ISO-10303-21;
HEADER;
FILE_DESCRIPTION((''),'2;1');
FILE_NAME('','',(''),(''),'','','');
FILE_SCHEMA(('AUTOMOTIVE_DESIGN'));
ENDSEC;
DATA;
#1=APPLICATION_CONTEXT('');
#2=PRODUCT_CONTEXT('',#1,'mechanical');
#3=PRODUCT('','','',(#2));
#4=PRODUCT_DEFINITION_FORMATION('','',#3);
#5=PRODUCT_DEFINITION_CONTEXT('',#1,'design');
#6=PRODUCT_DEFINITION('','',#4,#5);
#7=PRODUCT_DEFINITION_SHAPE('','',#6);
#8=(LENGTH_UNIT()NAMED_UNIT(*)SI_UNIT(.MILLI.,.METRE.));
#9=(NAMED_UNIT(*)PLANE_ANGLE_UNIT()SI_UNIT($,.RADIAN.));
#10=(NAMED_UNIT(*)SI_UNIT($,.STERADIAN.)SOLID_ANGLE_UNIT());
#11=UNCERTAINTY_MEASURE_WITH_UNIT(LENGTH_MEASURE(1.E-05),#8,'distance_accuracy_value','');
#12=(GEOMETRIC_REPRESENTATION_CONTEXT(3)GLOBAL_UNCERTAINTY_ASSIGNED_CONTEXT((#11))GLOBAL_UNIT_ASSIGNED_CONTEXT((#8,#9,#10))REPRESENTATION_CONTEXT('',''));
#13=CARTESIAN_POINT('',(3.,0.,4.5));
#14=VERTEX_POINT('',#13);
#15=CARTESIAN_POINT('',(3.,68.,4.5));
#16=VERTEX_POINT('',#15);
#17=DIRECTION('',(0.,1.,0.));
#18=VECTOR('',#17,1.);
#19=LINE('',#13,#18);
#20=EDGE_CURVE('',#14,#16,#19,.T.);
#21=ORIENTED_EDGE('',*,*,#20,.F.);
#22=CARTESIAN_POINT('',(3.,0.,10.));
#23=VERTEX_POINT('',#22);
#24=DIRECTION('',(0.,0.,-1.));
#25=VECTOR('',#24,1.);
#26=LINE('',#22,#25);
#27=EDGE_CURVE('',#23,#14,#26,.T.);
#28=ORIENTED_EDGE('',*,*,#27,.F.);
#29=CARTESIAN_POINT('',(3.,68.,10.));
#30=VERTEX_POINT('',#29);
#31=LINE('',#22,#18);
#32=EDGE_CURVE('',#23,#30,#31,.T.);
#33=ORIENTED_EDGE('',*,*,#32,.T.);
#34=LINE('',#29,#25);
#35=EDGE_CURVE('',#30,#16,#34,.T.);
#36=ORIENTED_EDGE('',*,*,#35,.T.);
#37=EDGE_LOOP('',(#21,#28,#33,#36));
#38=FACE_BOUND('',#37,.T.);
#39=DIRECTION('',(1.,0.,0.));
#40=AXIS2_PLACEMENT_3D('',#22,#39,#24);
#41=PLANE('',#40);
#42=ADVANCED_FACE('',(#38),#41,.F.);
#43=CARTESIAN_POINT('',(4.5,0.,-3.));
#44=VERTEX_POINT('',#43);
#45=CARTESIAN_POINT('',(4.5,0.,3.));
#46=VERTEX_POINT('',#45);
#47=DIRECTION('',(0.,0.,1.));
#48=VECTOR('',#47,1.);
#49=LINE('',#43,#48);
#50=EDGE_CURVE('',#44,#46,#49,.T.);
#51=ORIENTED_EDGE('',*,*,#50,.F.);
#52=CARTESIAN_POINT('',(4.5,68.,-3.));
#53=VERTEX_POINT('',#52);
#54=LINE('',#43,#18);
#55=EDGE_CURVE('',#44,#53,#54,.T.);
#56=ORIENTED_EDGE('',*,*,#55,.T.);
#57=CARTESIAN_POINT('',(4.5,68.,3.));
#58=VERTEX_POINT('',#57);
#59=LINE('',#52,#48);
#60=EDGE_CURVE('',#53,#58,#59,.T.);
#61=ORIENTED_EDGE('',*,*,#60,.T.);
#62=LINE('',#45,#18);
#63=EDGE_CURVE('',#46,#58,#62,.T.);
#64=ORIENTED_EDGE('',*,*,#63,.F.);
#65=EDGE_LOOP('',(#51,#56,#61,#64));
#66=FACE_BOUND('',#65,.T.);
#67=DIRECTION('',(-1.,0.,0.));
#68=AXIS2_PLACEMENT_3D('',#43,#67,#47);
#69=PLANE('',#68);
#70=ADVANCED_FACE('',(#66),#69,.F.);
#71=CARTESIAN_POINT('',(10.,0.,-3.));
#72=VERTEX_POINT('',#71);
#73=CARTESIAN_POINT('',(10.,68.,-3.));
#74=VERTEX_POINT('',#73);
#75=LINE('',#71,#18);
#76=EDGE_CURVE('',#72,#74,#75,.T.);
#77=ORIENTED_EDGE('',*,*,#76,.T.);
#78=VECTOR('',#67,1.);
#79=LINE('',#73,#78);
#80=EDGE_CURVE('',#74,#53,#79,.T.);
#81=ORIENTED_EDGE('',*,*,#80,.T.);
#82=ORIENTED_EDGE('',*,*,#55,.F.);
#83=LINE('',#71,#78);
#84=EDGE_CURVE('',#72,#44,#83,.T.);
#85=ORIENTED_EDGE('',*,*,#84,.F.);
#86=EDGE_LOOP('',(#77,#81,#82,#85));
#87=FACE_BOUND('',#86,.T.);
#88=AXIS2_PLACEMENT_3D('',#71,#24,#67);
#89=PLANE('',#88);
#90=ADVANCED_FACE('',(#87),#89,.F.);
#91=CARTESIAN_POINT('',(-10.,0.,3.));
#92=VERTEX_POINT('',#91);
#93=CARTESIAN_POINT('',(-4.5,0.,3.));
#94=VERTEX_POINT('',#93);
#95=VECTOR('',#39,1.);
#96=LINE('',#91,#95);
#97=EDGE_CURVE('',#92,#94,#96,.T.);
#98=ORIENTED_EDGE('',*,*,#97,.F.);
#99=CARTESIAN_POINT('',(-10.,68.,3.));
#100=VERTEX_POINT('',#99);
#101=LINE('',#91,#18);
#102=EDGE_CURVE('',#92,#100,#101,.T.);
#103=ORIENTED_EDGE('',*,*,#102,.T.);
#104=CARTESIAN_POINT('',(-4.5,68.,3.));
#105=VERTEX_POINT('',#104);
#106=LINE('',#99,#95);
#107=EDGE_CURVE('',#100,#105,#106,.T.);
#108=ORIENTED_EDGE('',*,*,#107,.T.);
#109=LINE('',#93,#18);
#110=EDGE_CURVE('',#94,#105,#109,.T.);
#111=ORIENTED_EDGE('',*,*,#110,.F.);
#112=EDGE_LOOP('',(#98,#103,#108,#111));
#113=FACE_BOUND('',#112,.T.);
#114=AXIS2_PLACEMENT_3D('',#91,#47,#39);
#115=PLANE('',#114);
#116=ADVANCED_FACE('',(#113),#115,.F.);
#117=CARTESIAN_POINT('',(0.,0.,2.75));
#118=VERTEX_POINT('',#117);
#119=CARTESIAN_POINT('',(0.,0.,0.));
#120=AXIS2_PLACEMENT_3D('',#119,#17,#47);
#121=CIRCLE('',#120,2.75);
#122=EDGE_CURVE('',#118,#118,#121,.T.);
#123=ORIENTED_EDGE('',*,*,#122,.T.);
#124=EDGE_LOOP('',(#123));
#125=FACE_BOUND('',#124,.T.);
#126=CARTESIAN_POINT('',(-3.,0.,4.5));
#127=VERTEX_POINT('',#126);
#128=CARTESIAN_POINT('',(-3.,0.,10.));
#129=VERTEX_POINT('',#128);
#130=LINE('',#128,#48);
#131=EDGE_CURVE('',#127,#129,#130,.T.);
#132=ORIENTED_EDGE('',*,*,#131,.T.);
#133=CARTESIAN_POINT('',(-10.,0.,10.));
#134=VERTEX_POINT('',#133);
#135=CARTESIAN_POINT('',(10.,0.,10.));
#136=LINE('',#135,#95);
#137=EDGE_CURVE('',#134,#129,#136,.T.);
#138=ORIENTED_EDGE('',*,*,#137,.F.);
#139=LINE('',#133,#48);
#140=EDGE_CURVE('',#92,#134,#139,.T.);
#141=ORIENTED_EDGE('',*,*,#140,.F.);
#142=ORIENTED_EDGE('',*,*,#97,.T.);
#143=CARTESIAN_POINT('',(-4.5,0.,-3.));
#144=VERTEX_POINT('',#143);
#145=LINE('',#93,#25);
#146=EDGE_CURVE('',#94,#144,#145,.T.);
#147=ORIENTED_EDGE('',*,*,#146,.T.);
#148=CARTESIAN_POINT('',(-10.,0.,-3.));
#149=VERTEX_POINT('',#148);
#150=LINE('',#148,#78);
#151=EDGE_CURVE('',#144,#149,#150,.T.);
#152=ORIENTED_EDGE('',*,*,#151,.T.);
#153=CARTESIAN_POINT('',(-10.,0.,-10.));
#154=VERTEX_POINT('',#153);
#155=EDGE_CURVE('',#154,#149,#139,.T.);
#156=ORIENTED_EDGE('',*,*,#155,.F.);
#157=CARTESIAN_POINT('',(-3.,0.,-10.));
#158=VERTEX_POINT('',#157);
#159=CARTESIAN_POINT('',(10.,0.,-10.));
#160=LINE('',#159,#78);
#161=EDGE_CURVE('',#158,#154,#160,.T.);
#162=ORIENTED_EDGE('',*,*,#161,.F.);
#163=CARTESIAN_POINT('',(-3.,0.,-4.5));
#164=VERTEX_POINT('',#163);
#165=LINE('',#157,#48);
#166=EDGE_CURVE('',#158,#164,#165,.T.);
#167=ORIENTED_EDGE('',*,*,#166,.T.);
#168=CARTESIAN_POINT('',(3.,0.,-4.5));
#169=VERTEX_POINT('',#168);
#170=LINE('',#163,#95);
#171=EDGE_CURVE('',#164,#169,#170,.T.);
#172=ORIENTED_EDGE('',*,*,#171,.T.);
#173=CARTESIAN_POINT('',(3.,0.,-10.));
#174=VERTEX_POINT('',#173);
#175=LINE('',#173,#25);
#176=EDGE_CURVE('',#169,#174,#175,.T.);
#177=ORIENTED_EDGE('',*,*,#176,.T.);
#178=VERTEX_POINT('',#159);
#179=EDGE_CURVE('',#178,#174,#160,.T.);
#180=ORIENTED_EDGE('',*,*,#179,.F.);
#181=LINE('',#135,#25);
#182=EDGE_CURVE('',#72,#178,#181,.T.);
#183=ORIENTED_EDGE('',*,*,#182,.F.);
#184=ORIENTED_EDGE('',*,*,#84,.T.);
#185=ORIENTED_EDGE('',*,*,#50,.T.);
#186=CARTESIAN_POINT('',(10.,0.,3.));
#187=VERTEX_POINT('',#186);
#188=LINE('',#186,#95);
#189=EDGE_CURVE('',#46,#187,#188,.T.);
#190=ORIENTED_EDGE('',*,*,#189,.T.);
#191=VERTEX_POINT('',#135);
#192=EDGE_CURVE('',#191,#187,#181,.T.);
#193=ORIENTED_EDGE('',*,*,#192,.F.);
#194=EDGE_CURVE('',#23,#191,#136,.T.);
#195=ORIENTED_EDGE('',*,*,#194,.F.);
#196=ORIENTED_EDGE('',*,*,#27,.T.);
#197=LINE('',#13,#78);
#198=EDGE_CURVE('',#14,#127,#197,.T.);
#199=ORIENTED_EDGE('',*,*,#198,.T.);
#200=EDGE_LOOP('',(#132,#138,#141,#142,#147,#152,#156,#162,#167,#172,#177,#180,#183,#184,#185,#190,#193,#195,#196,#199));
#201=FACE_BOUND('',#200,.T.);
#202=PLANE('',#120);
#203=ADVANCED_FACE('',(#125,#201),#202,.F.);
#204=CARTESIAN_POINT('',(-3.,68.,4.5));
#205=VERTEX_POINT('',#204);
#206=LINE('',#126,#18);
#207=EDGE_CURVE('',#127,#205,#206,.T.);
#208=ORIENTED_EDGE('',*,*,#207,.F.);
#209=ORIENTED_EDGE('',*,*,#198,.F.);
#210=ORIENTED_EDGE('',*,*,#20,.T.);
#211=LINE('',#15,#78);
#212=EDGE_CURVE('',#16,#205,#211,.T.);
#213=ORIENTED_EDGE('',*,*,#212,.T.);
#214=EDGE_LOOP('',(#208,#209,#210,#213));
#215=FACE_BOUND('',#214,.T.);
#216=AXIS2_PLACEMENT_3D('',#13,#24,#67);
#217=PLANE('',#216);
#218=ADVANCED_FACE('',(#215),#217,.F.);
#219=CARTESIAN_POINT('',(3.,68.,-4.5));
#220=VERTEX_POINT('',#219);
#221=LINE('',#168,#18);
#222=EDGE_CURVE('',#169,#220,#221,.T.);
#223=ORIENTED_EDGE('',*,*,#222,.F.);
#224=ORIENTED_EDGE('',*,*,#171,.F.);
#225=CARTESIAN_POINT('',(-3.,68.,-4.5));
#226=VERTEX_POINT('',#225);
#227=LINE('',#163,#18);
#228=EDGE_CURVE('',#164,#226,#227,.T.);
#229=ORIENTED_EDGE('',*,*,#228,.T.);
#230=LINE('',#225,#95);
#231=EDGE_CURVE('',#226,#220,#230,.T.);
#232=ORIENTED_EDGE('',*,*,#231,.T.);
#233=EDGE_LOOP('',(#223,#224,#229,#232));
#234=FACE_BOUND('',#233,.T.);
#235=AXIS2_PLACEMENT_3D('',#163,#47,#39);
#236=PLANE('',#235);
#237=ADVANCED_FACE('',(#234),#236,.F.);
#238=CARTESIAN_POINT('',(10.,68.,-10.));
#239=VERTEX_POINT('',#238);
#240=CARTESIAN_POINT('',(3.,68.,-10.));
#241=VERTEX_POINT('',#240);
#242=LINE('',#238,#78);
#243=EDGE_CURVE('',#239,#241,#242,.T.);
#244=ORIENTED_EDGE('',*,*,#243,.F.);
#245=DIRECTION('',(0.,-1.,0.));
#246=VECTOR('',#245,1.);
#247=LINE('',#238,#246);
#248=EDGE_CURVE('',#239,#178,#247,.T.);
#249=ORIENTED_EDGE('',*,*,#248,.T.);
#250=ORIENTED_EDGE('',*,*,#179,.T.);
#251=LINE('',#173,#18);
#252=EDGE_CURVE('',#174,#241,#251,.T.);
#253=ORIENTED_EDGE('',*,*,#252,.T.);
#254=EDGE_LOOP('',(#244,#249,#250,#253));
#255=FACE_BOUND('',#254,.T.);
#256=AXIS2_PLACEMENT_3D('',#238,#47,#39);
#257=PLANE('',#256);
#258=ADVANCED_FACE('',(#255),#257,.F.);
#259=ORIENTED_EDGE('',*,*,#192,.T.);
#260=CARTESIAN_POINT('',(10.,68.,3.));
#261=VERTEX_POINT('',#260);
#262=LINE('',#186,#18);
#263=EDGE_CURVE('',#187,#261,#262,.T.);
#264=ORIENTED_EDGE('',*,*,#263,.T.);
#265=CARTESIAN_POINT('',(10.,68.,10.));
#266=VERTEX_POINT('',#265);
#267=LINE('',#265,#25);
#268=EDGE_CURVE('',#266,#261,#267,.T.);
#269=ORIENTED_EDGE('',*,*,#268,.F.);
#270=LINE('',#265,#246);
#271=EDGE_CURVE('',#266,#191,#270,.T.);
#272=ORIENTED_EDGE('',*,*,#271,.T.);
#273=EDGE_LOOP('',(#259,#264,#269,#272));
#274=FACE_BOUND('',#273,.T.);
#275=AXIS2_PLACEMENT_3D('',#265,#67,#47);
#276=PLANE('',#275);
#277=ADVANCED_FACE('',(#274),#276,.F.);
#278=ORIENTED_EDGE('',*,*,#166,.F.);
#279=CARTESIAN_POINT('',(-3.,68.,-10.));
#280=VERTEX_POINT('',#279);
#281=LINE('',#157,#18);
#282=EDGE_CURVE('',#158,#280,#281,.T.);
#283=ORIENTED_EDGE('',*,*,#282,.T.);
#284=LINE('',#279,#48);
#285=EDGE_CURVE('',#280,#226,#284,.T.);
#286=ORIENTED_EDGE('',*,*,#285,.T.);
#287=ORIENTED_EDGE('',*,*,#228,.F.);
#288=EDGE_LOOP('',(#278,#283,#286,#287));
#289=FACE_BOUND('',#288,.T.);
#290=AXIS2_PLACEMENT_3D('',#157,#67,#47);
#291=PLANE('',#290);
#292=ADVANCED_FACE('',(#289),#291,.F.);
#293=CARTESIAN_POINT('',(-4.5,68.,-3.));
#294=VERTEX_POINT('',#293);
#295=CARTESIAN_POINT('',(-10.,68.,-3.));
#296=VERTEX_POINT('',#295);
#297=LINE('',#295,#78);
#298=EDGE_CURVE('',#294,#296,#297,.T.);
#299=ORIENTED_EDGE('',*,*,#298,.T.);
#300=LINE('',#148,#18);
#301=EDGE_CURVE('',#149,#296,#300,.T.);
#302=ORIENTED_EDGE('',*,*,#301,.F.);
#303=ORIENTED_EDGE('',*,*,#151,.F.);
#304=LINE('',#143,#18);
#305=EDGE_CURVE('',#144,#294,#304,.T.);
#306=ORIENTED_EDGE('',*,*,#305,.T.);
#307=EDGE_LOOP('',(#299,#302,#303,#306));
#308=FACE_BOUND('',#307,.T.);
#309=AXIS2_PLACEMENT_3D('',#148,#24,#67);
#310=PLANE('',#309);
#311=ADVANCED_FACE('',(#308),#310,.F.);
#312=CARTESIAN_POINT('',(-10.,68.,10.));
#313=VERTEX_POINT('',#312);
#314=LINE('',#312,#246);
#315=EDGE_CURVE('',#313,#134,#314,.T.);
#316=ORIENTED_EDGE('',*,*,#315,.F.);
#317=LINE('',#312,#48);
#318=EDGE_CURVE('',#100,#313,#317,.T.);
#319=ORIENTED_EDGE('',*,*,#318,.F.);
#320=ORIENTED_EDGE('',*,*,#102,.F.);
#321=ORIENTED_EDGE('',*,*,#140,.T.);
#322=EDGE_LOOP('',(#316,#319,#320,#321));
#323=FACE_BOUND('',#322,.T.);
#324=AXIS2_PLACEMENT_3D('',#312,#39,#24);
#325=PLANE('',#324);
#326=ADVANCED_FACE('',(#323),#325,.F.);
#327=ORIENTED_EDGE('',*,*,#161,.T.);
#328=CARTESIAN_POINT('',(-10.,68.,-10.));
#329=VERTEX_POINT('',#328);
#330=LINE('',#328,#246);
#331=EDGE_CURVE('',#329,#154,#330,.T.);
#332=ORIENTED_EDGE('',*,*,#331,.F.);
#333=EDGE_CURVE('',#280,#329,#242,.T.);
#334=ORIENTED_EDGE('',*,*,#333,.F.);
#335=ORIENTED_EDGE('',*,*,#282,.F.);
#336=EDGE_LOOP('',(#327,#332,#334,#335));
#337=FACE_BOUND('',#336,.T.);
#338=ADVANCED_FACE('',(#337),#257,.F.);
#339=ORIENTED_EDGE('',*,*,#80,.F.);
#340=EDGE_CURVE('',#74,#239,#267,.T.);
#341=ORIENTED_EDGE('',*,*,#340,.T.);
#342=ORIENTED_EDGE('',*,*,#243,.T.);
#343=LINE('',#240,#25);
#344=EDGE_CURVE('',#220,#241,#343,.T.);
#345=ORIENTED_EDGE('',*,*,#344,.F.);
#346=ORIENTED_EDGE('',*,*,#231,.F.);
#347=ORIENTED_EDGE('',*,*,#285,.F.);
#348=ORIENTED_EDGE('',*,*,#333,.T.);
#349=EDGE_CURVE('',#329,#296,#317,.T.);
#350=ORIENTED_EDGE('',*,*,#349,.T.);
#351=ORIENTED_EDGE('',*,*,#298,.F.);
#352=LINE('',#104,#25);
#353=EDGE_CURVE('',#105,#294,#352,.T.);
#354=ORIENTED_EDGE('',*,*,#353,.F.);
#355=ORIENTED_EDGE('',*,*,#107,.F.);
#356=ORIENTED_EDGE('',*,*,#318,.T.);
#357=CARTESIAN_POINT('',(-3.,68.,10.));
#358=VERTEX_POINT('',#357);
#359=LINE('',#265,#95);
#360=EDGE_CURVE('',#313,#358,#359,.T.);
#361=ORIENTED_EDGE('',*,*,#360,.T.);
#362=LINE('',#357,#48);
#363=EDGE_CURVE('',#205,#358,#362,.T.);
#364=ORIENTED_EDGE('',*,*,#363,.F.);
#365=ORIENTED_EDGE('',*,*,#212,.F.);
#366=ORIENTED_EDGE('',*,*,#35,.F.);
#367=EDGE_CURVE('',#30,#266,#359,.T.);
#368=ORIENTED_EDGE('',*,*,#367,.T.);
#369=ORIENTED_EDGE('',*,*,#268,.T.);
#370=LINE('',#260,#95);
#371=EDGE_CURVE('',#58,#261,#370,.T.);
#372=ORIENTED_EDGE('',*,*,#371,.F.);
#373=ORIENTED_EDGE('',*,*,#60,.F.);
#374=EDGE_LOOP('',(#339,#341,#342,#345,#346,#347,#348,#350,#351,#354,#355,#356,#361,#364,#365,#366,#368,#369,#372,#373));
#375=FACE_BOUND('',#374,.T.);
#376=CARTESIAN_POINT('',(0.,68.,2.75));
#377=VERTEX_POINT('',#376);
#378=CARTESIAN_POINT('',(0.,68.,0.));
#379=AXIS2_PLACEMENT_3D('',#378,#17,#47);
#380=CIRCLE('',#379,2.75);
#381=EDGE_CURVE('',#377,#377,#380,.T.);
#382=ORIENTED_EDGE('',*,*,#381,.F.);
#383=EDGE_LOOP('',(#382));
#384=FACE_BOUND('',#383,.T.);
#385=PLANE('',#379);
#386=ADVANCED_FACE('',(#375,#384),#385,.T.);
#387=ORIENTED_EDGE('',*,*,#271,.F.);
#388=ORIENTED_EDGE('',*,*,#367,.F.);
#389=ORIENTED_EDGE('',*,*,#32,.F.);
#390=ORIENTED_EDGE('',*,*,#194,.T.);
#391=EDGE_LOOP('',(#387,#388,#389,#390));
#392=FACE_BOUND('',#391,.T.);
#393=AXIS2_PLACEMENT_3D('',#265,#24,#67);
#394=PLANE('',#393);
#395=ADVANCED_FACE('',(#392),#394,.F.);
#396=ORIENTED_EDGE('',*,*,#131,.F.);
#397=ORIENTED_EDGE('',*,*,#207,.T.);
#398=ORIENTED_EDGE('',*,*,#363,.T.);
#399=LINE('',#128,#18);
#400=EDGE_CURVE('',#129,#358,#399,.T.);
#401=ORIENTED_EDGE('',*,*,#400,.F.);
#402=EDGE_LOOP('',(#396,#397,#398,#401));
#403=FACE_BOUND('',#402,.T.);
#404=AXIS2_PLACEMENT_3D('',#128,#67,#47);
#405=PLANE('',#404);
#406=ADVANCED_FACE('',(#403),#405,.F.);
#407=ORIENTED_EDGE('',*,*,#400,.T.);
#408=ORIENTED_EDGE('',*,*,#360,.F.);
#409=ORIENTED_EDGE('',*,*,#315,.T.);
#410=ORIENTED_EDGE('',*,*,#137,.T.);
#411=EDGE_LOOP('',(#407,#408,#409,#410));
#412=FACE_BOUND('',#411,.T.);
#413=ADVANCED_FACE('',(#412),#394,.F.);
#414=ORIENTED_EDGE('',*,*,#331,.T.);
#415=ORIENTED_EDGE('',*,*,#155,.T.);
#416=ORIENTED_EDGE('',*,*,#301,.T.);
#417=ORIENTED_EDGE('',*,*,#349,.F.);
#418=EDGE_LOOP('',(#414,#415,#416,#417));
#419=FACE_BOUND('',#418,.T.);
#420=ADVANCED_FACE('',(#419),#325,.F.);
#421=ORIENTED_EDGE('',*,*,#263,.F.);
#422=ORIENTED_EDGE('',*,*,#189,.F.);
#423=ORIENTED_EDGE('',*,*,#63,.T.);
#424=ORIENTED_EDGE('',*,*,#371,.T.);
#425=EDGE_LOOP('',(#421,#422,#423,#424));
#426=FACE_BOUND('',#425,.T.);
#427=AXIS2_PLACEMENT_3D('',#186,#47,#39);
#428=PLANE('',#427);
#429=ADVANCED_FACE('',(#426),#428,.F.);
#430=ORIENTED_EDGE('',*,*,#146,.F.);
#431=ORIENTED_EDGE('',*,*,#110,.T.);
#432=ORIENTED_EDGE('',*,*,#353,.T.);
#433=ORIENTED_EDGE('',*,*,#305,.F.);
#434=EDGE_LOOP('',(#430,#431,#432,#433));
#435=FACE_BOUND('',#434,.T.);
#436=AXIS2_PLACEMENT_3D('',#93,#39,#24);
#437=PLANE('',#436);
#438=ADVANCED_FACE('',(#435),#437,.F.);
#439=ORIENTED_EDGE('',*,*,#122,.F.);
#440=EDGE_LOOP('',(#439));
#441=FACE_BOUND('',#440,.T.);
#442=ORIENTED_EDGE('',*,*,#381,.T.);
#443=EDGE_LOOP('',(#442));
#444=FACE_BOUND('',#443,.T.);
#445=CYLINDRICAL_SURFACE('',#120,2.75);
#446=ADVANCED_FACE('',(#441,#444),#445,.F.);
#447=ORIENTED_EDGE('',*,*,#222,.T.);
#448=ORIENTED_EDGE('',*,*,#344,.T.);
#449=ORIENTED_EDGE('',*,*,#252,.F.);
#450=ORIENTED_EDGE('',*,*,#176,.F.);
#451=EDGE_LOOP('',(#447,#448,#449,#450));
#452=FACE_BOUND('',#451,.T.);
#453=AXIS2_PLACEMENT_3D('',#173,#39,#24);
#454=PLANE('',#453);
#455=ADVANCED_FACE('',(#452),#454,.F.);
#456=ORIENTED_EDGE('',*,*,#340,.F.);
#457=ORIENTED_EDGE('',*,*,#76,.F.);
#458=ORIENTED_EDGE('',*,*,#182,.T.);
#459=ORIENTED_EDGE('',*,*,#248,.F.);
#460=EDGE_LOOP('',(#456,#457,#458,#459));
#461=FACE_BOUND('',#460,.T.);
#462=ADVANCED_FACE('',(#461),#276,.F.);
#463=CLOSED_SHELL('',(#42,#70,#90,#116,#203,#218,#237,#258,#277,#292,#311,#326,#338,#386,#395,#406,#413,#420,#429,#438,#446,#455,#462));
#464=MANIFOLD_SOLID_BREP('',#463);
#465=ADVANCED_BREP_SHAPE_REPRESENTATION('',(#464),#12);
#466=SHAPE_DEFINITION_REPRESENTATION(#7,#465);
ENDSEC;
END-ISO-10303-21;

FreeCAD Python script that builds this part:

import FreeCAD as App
import Part
import Sketcher
from FreeCAD import Vector


def add_polygon(sketch, points):
    """Adds a closed chain of lines whose ends are joined by coincident constraints."""
    first, n = sketch.GeometryCount, len(points)
    for a, b in zip(points, points[1:] + points[:1]):
        sketch.addGeometry(Part.LineSegment(App.Vector(*a, 0), App.Vector(*b, 0)), False)
    for i in range(n):
        sketch.addConstraint(Sketcher.Constraint("Coincident", first + i, 2, first + (i + 1) % n, 1))

doc = App.newDocument("Part")
body = doc.addObject("PartDesign::Body", "Body")

sketch1 = body.newObject("Sketcher::SketchObject", "Sketch")
sketch1.AttachmentSupport = (doc.getObject("XZ_Plane"), [""])
sketch1.MapMode = "FlatFace"
add_polygon(sketch1, [(-10, -10), (-10, 10), (10, 10), (10, -10)])
sketch1.addConstraint(Sketcher.Constraint("Vertical", 0))
sketch1.addConstraint(Sketcher.Constraint("Horizontal", 1))
sketch1.addConstraint(Sketcher.Constraint("Vertical", 2))
sketch1.addConstraint(Sketcher.Constraint("Horizontal", 3))
sketch1.addConstraint(Sketcher.Constraint("Symmetric", 0, 2, 2, 2, -1, 1))
sketch1.addConstraint(Sketcher.Constraint("Equal", 3, 0))
sketch1.addConstraint(Sketcher.Constraint("DistanceX", 1, 1, 1, 2, 20.0))
pad1 = body.newObject("PartDesign::Pad", "Pad")
pad1.Profile = sketch1
pad1.Length = 68
pad1.Reversed = True

sketch2 = body.newObject("Sketcher::SketchObject", "Sketch001")
sketch2.AttachmentSupport = (doc.getObject("XZ_Plane"), [""])
sketch2.MapMode = "FlatFace"
sketch2.AttachmentOffset = App.Placement(Vector(0, 0, -68), App.Rotation())
sketch2.addGeometry(Part.Circle(Vector(0, 0, 0), Vector(0, 0, 1), 2.8), False)
add_polygon(sketch2, [(-3, -10), (-3, -4.5), (3, -4.5), (3, -10)])
add_polygon(sketch2, [(4.5, -3), (4.5, 3), (10, 3), (10, -3)])
add_polygon(sketch2, [(-3, 4.5), (-3, 10), (3, 10), (3, 4.5)])
add_polygon(sketch2, [(-10, -3), (-10, 3), (-4.5, 3), (-4.5, -3)])
sketch2.addConstraint(Sketcher.Constraint("Vertical", 1))
sketch2.addConstraint(Sketcher.Constraint("Horizontal", 2))
sketch2.addConstraint(Sketcher.Constraint("Vertical", 3))
sketch2.addConstraint(Sketcher.Constraint("Horizontal", 4))
sketch2.addConstraint(Sketcher.Constraint("Vertical", 5))
sketch2.addConstraint(Sketcher.Constraint("Horizontal", 6))
sketch2.addConstraint(Sketcher.Constraint("Vertical", 7))
sketch2.addConstraint(Sketcher.Constraint("Horizontal", 8))
sketch2.addConstraint(Sketcher.Constraint("Vertical", 9))
sketch2.addConstraint(Sketcher.Constraint("Horizontal", 10))
sketch2.addConstraint(Sketcher.Constraint("Vertical", 11))
sketch2.addConstraint(Sketcher.Constraint("Horizontal", 12))
sketch2.addConstraint(Sketcher.Constraint("Vertical", 13))
sketch2.addConstraint(Sketcher.Constraint("Horizontal", 14))
sketch2.addConstraint(Sketcher.Constraint("Vertical", 15))
sketch2.addConstraint(Sketcher.Constraint("Horizontal", 16))
sketch2.addConstraint(Sketcher.Constraint("Coincident", 0, 3, -1, 1))
sketch2.addConstraint(Sketcher.Constraint("Symmetric", 3, 2, 9, 2, -1, 1))
sketch2.addConstraint(Sketcher.Constraint("Symmetric", 1, 2, 11, 2, -1, 1))
sketch2.addConstraint(Sketcher.Constraint("Symmetric", 7, 2, 13, 2, -1, 1))
sketch2.addConstraint(Sketcher.Constraint("Symmetric", 5, 2, 15, 2, -1, 1))
sketch2.addConstraint(Sketcher.Constraint("Horizontal", 6, 2, 13, 2))
sketch2.addConstraint(Sketcher.Constraint("Vertical", 4, 2, 9, 2))
sketch2.addConstraint(Sketcher.Constraint("Equal", 16, 1))
sketch2.addConstraint(Sketcher.Constraint("Equal", 12, 5))
sketch2.addConstraint(Sketcher.Constraint("Diameter", 0, 5.5))
sketch2.addConstraint(Sketcher.Constraint("DistanceX", 2, 1, 2, 2, 6.0))
sketch2.addConstraint(Sketcher.Constraint("DistanceX", 6, 1, 6, 2, 5.5))
sketch2.addConstraint(Sketcher.Constraint("DistanceY", 3, 2, -1, 1, 10.0))
sketch2.addConstraint(Sketcher.Constraint("DistanceX", -1, 1, 6, 2, 10.0))
pocket1 = body.newObject("PartDesign::Pocket", "Pocket")
pocket1.Profile = sketch2
pocket1.Type = "ThroughAll"
pocket1.Reversed = True

doc.recompute()
